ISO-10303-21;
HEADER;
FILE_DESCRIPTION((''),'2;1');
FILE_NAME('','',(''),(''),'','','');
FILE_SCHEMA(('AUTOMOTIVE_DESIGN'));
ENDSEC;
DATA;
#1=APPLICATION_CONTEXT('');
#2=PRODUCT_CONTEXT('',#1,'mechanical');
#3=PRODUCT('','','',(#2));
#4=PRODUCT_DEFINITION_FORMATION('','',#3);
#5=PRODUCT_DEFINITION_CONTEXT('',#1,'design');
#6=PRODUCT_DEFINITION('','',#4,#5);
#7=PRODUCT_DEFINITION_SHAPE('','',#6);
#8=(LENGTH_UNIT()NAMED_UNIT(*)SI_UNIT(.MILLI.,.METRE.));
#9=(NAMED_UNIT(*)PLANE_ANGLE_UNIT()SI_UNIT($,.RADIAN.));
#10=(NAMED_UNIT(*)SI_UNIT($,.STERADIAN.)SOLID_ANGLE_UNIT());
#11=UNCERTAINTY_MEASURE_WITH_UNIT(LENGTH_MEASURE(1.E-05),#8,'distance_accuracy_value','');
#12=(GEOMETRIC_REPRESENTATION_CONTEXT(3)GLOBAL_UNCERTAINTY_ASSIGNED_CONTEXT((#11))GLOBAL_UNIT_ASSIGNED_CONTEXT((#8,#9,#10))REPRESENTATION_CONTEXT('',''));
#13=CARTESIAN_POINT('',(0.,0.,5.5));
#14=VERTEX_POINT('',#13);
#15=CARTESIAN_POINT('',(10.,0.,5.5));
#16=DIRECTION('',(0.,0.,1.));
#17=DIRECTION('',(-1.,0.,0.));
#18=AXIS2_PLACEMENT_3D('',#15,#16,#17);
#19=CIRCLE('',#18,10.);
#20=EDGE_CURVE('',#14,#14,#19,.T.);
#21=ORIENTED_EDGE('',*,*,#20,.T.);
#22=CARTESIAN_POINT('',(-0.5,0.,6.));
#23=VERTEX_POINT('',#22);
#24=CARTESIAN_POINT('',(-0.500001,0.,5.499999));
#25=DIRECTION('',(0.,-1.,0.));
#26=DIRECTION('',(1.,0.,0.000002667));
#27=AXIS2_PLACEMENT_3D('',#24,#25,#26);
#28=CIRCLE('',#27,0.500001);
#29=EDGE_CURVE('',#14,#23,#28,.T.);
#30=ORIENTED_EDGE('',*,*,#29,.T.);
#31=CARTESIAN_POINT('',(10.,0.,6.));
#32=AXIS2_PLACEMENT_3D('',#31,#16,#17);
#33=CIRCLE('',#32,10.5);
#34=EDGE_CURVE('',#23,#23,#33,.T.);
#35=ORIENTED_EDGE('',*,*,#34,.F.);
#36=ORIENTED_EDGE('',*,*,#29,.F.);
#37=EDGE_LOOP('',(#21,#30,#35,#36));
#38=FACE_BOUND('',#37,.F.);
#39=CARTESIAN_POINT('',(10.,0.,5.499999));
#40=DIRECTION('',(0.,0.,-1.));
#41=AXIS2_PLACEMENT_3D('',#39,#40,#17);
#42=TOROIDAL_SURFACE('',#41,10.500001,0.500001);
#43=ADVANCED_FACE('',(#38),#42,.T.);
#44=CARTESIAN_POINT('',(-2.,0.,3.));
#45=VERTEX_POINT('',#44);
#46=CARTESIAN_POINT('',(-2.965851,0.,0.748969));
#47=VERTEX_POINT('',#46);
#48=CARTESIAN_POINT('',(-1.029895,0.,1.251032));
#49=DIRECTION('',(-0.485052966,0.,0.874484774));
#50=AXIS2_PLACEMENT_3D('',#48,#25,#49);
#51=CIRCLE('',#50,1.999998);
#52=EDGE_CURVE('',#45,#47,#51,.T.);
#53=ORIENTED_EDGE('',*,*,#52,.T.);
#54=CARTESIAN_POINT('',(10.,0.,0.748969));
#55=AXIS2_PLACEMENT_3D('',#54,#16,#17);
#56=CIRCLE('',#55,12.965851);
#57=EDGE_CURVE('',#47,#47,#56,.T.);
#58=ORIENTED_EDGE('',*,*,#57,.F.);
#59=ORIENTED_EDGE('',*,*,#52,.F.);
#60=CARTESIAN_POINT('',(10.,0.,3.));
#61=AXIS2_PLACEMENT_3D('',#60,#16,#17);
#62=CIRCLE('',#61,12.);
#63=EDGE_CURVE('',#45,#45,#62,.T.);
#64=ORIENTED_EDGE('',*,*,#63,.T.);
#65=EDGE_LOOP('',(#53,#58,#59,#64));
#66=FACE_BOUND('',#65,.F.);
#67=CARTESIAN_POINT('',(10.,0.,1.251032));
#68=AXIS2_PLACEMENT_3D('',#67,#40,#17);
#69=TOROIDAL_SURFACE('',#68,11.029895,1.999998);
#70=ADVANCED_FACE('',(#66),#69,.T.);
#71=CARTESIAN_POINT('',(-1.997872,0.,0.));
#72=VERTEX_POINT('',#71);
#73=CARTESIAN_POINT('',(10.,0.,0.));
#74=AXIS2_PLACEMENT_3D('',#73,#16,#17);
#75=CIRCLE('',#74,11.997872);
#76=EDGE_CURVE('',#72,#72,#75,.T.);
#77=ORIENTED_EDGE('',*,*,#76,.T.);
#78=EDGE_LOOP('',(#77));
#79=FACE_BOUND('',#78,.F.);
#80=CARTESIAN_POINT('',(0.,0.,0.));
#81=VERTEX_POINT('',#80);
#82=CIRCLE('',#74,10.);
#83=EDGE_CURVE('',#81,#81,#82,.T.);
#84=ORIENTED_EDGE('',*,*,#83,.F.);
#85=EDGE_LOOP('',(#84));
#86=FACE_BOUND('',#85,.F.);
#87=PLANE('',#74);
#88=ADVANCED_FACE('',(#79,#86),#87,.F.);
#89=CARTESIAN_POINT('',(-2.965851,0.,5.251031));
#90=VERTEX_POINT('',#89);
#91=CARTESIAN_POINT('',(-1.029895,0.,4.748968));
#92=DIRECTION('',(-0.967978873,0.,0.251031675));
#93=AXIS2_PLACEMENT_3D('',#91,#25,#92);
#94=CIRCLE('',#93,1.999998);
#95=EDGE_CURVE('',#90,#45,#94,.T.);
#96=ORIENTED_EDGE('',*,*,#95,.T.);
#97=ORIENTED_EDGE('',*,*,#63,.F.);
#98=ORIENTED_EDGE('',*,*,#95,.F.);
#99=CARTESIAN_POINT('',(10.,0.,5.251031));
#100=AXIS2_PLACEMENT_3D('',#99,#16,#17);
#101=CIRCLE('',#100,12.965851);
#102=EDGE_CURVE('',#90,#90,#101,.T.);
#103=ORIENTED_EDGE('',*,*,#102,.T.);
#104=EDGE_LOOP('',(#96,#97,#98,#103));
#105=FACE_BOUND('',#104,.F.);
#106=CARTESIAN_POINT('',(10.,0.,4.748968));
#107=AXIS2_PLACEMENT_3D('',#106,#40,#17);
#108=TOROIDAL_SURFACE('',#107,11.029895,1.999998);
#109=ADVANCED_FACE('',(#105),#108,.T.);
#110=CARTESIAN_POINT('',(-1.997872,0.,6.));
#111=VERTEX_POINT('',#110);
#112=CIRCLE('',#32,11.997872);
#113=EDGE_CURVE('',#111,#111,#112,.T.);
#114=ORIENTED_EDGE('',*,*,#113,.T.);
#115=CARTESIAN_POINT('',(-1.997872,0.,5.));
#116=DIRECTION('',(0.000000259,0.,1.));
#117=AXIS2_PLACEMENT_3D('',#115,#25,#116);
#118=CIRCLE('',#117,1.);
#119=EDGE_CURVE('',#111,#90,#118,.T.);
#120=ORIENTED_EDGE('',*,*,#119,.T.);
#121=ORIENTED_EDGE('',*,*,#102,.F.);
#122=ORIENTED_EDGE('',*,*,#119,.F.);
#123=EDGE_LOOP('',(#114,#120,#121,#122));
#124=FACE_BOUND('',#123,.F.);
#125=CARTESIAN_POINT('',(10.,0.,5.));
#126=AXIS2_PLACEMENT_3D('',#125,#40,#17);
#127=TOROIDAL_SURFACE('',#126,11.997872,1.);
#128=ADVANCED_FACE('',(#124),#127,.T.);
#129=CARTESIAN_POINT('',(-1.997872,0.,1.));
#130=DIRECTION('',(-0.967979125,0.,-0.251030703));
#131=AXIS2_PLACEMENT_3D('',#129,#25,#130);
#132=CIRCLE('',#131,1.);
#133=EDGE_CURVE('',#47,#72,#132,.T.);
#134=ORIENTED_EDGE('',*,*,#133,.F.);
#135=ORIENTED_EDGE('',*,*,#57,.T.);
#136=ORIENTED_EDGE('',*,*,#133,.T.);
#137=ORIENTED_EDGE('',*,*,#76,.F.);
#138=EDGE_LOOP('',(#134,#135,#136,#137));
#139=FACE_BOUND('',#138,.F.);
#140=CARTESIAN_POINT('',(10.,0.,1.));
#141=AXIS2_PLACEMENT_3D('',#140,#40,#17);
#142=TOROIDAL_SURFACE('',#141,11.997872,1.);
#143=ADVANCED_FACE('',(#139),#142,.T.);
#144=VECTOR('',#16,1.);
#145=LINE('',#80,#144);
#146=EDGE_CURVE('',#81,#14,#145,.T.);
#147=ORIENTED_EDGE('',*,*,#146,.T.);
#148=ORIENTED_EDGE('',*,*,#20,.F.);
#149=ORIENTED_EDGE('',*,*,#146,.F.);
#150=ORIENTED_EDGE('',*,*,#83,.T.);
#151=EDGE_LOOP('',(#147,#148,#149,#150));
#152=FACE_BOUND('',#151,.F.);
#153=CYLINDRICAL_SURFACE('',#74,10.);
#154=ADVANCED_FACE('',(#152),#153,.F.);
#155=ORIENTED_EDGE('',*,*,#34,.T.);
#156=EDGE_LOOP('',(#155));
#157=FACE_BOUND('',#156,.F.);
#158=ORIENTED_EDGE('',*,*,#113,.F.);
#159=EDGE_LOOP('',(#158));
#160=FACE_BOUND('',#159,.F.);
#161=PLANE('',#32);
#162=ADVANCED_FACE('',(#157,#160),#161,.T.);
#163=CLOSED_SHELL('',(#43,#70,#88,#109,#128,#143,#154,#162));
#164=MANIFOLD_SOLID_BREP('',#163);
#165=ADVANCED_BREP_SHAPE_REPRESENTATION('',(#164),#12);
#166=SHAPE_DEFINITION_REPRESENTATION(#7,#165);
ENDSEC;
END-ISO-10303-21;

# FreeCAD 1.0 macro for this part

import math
import FreeCAD as App
import Part
import Sketcher
Q = App.Units.Quantity

doc = App.newDocument("Part")
params = doc.addObject("Spreadsheet::Sheet", "Params")
for row, (alias, value) in enumerate([
    ("sketch1_radius", "1 mm"),
    ("sketch1_radius2", "1.999998 mm"),
    ("sketch1_radius3", "0.500001 mm"),
    ("sketch1_height", "6 mm"),
    ("revolution_angle", "360 deg"),
], start=1):
    params.set(f"A{row}", alias)
    params.set(f"B{row}", "=" + value)
    params.setAlias(f"B{row}", alias)

body = doc.addObject("PartDesign::Body", "Body")

sketch1 = body.newObject("Sketcher::SketchObject", "Sketch")
sketch1.AttachmentSupport = (doc.getObject("XZ_Plane"), [""])
sketch1.MapMode = "FlatFace"
sketch1.addGeometry(Part.LineSegment(App.Vector(-2, 0, 0), App.Vector(0, 0, 0)), False)
sketch1.addGeometry(Part.LineSegment(App.Vector(0, 0, 0), App.Vector(0, 5.5, 0)), False)
sketch1.addGeometry(Part.ArcOfCircle(Part.Circle(App.Vector(-0.5, 5.5, 0), App.Vector(0, 0, 1), 0.5), math.radians(0), math.radians(90)), False)
sketch1.addGeometry(Part.LineSegment(App.Vector(-0.5, 6, 0), App.Vector(-2, 6, 0)), False)
sketch1.addGeometry(Part.ArcOfCircle(Part.Circle(App.Vector(-2, 5, 0), App.Vector(0, 0, 1), 1), math.radians(90), math.radians(165)), False)
sketch1.addGeometry(Part.ArcOfCircle(Part.Circle(App.Vector(-1, 4.7, 0), App.Vector(0, 0, 1), 2), math.radians(165), math.radians(241)), False)
sketch1.addGeometry(Part.ArcOfCircle(Part.Circle(App.Vector(-1, 1.3, 0), App.Vector(0, 0, 1), 2), math.radians(119), math.radians(195)), False)
sketch1.addGeometry(Part.ArcOfCircle(Part.Circle(App.Vector(-2, 1, 0), App.Vector(0, 0, 1), 1), math.radians(-165), math.radians(-90)), False)
sketch1.addGeometry(Part.LineSegment(App.Vector(10, 0, 0), App.Vector(10, 6, 0)), True)
sketch1.addConstraint(Sketcher.Constraint("Coincident", 0, 2, 1, 1))
sketch1.addConstraint(Sketcher.Constraint("Coincident", 1, 2, 2, 1))
sketch1.addConstraint(Sketcher.Constraint("Coincident", 2, 2, 3, 1))
sketch1.addConstraint(Sketcher.Constraint("Tangent", 3, 2, 4, 1))
sketch1.addConstraint(Sketcher.Constraint("Tangent", 4, 2, 5, 1))
sketch1.addConstraint(Sketcher.Constraint("Coincident", 5, 2, 6, 1))
sketch1.addConstraint(Sketcher.Constraint("Tangent", 6, 2, 7, 1))
sketch1.addConstraint(Sketcher.Constraint("Tangent", 7, 2, 0, 1))
sketch1.addConstraint(Sketcher.Constraint("Horizontal", 0))
sketch1.addConstraint(Sketcher.Constraint("Vertical", 1))
sketch1.addConstraint(Sketcher.Constraint("Horizontal", 3))
sketch1.addConstraint(Sketcher.Constraint("Vertical", 8))
sketch1.addConstraint(Sketcher.Constraint("Coincident", 0, 2, -1, 1))
sketch1.addConstraint(Sketcher.Constraint("Equal", 5, 6))
sketch1.addConstraint(Sketcher.Constraint("Equal", 4, 7))
sketch1.addConstraint(Sketcher.Constraint("PointOnObject", 8, 1, -1))
sketch1.addConstraint(Sketcher.Constraint("Horizontal", 2, 3, 1, 2))
sketch1.addConstraint(Sketcher.Constraint("Horizontal", 3, 2, 8, 2))
sketch1.addConstraint(Sketcher.Constraint("Vertical", 5, 3, 6, 3))
sketch1.addConstraint(Sketcher.Constraint("Vertical", 4, 3, 7, 3))
sketch1.addConstraint(Sketcher.Constraint("Radius", 4, Q("1 mm")))
sketch1.addConstraint(Sketcher.Constraint("Radius", 5, Q("1.999998 mm")))
sketch1.addConstraint(Sketcher.Constraint("Radius", 2, Q("0.500001 mm")))
sketch1.addConstraint(Sketcher.Constraint("DistanceY", 8, 1, 8, 2, Q("6 mm")))
sketch1.addConstraint(Sketcher.Constraint("DistanceX", 5, 2, -1, 1, Q("2 mm")))
sketch1.addConstraint(Sketcher.Constraint("DistanceX", -1, 1, 8, 1, Q("10 mm")))
sketch1.addConstraint(Sketcher.Constraint("DistanceX", 2, 2, -1, 1, Q("0.5 mm")))
sketch1.addConstraint(Sketcher.Constraint("DistanceX", 0, 1, 0, 2, Q("1.997872 mm")))
sketch1.setExpression("Constraints[20]", "Params.sketch1_radius")
sketch1.setExpression("Constraints[21]", "Params.sketch1_radius2")
sketch1.setExpression("Constraints[22]", "Params.sketch1_radius3")
sketch1.setExpression("Constraints[23]", "Params.sketch1_height")
revolution = body.newObject("PartDesign::Revolution", "Revolution")
revolution.Profile = sketch1
revolution.ReferenceAxis = (sketch1, ["Axis0"])
revolution.setExpression("Angle", "Params.revolution_angle")

doc.recompute()
